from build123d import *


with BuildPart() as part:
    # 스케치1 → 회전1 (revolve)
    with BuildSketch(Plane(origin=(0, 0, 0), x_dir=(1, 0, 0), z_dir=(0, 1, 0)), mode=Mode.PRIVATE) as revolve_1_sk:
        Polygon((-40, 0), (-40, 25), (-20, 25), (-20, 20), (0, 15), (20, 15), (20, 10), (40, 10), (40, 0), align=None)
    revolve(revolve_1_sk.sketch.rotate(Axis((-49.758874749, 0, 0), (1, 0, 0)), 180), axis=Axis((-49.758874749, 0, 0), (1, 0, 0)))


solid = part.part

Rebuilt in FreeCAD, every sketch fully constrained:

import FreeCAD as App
import Part
import Sketcher

doc = App.newDocument("Part")
body = doc.addObject("PartDesign::Body", "Body")

# Sketch on XZ plane
sketch1 = body.newObject("Sketcher::SketchObject", "Sketch")
sketch1.AttachmentSupport = (doc.getObject("XZ_Plane"), [""])
sketch1.MapMode = "FlatFace"
sketch1.addGeometry(Part.LineSegment(App.Vector(-40, -25, 0), App.Vector(-40, 0, 0)), False)
sketch1.addGeometry(Part.LineSegment(App.Vector(-40, 0, 0), App.Vector(40, 0, 0)), False)
sketch1.addGeometry(Part.LineSegment(App.Vector(40, 0, 0), App.Vector(40, -10, 0)), False)
sketch1.addGeometry(Part.LineSegment(App.Vector(40, -10, 0), App.Vector(20, -10, 0)), False)
sketch1.addGeometry(Part.LineSegment(App.Vector(20, -10, 0), App.Vector(20, -15, 0)), False)
sketch1.addGeometry(Part.LineSegment(App.Vector(20, -15, 0), App.Vector(0, -15, 0)), False)
sketch1.addGeometry(Part.LineSegment(App.Vector(0, -15, 0), App.Vector(-20, -20, 0)), False)
sketch1.addGeometry(Part.LineSegment(App.Vector(-20, -20, 0), App.Vector(-20, -25, 0)), False)
sketch1.addGeometry(Part.LineSegment(App.Vector(-20, -25, 0), App.Vector(-40, -25, 0)), False)
sketch1.addConstraint(Sketcher.Constraint("Coincident", 0, 2, 1, 1))
sketch1.addConstraint(Sketcher.Constraint("Coincident", 1, 2, 2, 1))
sketch1.addConstraint(Sketcher.Constraint("Coincident", 2, 2, 3, 1))
sketch1.addConstraint(Sketcher.Constraint("Coincident", 3, 2, 4, 1))
sketch1.addConstraint(Sketcher.Constraint("Coincident", 4, 2, 5, 1))
sketch1.addConstraint(Sketcher.Constraint("Coincident", 5, 2, 6, 1))
sketch1.addConstraint(Sketcher.Constraint("Coincident", 6, 2, 7, 1))
sketch1.addConstraint(Sketcher.Constraint("Coincident", 7, 2, 8, 1))
sketch1.addConstraint(Sketcher.Constraint("Coincident", 8, 2, 0, 1))
sketch1.addConstraint(Sketcher.Constraint("Vertical", 0))
sketch1.addConstraint(Sketcher.Constraint("Horizontal", 1))
sketch1.addConstraint(Sketcher.Constraint("Vertical", 2))
sketch1.addConstraint(Sketcher.Constraint("Horizontal", 3))
sketch1.addConstraint(Sketcher.Constraint("Vertical", 4))
sketch1.addConstraint(Sketcher.Constraint("Horizontal", 5))
sketch1.addConstraint(Sketcher.Constraint("Vertical", 7))
sketch1.addConstraint(Sketcher.Constraint("Horizontal", 8))
sketch1.addConstraint(Sketcher.Constraint("Symmetric", 0, 2, 1, 2, -1, 1))
sketch1.addConstraint(Sketcher.Constraint("PointOnObject", 5, 2, -2))
sketch1.addConstraint(Sketcher.Constraint("Equal", 3, 5))
sketch1.addConstraint(Sketcher.Constraint("Equal", 5, 8))
sketch1.addConstraint(Sketcher.Constraint("Equal", 4, 7))
sketch1.addConstraint(Sketcher.Constraint("DistanceX", 1, 1, 1, 2, 80.0))
sketch1.addConstraint(Sketcher.Constraint("DistanceY", 0, 1, 0, 2, 25.0))
sketch1.addConstraint(Sketcher.Constraint("DistanceY", 2, 2, 2, 1, 10.0))
sketch1.addConstraint(Sketcher.Constraint("DistanceY", 4, 2, 4, 1, 5.0))
revolution = body.newObject("PartDesign::Revolution", "Revolution")
revolution.Profile = sketch1
revolution.ReferenceAxis = (sketch1, ["H_Axis"])
revolution.Angle = 360

doc.recompute()
